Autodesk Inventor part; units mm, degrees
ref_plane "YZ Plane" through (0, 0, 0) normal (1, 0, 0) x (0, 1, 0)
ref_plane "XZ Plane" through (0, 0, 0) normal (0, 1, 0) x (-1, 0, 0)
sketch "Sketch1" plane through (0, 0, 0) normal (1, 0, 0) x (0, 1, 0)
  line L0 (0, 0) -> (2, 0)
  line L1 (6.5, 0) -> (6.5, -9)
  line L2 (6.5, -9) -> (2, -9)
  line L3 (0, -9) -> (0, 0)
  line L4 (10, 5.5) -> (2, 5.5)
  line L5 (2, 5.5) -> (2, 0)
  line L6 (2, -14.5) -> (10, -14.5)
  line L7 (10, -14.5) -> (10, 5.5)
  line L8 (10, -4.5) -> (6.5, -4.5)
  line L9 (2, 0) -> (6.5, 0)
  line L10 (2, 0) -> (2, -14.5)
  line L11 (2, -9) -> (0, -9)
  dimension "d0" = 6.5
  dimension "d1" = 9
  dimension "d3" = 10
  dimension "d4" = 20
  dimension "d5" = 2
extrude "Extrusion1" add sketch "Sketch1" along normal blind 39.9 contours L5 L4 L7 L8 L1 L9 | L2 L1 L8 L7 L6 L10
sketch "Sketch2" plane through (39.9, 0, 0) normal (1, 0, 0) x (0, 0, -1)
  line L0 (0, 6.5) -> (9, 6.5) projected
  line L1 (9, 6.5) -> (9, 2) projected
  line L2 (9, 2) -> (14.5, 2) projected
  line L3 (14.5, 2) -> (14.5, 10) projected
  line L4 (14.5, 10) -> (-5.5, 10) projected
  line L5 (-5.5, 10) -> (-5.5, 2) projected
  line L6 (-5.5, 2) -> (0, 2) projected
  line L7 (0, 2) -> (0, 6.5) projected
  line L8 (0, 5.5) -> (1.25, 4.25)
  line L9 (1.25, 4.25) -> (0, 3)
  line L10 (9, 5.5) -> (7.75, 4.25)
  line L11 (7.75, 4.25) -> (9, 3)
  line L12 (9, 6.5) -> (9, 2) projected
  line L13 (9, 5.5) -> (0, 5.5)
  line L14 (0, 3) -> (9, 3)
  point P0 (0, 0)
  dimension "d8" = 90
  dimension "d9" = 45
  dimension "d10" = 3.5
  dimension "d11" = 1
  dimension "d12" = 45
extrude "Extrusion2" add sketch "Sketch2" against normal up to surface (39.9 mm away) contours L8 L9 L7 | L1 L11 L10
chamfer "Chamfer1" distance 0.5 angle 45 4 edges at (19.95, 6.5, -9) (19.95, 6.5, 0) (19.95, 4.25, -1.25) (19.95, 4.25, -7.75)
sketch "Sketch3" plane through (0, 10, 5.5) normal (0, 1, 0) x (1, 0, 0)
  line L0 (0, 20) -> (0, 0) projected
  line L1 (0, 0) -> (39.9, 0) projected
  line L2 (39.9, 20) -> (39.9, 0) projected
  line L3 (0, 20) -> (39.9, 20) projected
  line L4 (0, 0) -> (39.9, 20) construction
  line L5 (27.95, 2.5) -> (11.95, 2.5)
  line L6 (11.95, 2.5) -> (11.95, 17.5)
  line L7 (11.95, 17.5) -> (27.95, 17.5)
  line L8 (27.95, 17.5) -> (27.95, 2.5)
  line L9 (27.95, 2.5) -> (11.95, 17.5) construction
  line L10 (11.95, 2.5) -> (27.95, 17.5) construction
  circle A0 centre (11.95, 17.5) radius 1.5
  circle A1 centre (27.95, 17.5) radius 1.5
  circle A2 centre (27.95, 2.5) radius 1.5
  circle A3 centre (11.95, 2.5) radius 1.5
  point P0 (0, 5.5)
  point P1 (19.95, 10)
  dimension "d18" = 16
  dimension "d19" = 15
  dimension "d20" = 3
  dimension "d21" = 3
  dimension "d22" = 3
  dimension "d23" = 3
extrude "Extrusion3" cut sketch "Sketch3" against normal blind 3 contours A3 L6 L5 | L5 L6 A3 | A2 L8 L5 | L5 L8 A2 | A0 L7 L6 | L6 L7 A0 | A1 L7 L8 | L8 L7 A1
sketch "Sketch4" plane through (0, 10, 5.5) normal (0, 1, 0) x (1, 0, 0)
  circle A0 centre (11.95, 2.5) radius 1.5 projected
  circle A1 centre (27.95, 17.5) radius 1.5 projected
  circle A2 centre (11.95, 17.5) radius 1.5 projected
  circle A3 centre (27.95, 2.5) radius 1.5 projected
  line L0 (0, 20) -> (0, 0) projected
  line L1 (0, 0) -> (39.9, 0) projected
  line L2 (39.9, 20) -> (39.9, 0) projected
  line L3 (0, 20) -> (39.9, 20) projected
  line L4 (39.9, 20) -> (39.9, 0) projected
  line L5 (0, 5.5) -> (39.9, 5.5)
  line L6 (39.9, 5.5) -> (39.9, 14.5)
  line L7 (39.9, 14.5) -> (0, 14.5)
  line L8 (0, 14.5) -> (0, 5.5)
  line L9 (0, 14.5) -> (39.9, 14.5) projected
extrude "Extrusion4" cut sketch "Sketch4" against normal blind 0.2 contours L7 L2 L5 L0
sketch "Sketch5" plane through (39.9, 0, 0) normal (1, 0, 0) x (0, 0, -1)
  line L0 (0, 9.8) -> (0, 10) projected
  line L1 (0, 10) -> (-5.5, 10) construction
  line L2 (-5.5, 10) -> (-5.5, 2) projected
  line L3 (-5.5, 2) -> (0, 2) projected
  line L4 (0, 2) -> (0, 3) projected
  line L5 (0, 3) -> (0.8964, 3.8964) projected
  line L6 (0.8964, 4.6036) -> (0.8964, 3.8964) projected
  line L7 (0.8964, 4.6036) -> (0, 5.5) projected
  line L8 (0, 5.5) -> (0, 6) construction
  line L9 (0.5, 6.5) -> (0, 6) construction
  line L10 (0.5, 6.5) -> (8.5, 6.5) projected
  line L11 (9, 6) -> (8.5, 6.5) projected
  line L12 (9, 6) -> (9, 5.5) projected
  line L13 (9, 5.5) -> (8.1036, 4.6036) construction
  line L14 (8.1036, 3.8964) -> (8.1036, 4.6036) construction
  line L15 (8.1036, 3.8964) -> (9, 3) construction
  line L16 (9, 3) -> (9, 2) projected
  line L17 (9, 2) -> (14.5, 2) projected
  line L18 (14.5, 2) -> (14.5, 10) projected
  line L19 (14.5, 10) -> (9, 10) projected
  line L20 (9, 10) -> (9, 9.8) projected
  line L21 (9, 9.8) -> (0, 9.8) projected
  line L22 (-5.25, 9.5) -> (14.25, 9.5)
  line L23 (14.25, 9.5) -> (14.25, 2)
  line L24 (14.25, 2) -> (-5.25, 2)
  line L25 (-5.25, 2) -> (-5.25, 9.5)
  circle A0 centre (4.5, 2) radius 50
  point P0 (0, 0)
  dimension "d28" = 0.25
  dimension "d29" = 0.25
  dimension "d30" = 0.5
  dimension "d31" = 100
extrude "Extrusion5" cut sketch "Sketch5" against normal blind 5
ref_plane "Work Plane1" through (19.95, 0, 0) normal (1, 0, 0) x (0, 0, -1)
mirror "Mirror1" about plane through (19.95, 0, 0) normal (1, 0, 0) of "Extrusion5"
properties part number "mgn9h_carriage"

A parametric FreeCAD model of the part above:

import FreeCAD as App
import Part
import Sketcher
from FreeCAD import Vector
Q = App.Units.Quantity


def edges_at(feature, points):
    """Names of the edges that pass closest to the given points."""
    edges = feature.Shape.Edges
    near = lambda p: min(range(len(edges)), key=lambda i: edges[i].distToShape(Part.Vertex(*p))[0])
    return sorted({f"Edge{near(p) + 1}" for p in points})


def add_polygon(sketch, points):
    """Adds a closed chain of lines whose ends are joined by coincident constraints."""
    first, n = sketch.GeometryCount, len(points)
    for a, b in zip(points, points[1:] + points[:1]):
        sketch.addGeometry(Part.LineSegment(App.Vector(*a, 0), App.Vector(*b, 0)), False)
    for i in range(n):
        sketch.addConstraint(Sketcher.Constraint("Coincident", first + i, 2, first + (i + 1) % n, 1))

doc = App.newDocument("Part")
params = doc.addObject("Spreadsheet::Sheet", "Params")
for row, (alias, value) in enumerate([
    ("sketch1_height", "9 mm"),
    ("sketch1_height2", "20 mm"),
    ("pad1_length", "39.9 mm"),
    ("sketch2_width", "2.5 mm"),
    ("pad2_length", "39.9 mm"),
    ("chamfer_size", "0.5 mm"),
    ("sketch3_diameter", "3 mm"),
    ("pocket1_length", "3 mm"),
    ("sketch4_height", "9 mm"),
    ("sketch4_width", "39.9 mm"),
    ("pocket2_length", "0.2 mm"),
    ("sketch5_diameter", "100 mm"),
    ("sketch5_width", "7.5 mm"),
    ("sketch5_height", "19.5 mm"),
    ("pocket3_length", "5 mm"),
], start=1):
    params.set(f"A{row}", alias)
    params.set(f"B{row}", "=" + value)
    params.setAlias(f"B{row}", alias)

body = doc.addObject("PartDesign::Body", "Body")

sketch1 = doc.addObject("Sketcher::SketchObject", "Sketch")
body.addObject(sketch1)
sketch1.AttachmentSupport = (doc.YZ_Plane, [""])
sketch1.MapMode = "FlatFace"
add_polygon(sketch1, [(2, 5.5), (2, 0), (6.5, 0), (6.5, -9), (2, -9), (2, -14.5), (10, -14.5), (10, 5.5)])
sketch1.addConstraint([
    Sketcher.Constraint("Vertical", 0),
    Sketcher.Constraint("Horizontal", 1),
    Sketcher.Constraint("Vertical", 2),
    Sketcher.Constraint("Horizontal", 3),
    Sketcher.Constraint("Vertical", 4),
    Sketcher.Constraint("Horizontal", 5),
    Sketcher.Constraint("Vertical", 6),
    Sketcher.Constraint("Horizontal", 7),
    Sketcher.Constraint("PointOnObject", 0, 2, -1),
    Sketcher.Constraint("Vertical", 0, 2, 3, 2),
    Sketcher.Constraint("Equal", 0, 4),
    Sketcher.Constraint("DistanceY", 2, 2, 2, 1, Q("9 mm")),
    Sketcher.Constraint("DistanceY", 6, 1, 6, 2, Q("20 mm")),
    Sketcher.Constraint("DistanceX", -1, 1, 0, 2, Q("2 mm")),
    Sketcher.Constraint("DistanceX", -1, 1, 5, 2, Q("10 mm")),
    Sketcher.Constraint("DistanceX", -1, 1, 1, 2, Q("6.5 mm")),
])
sketch1.setExpression("Constraints[19]", "Params.sketch1_height")
sketch1.setExpression("Constraints[20]", "Params.sketch1_height2")
pad1 = doc.addObject("PartDesign::Pad", "Pad")
body.addObject(pad1)
pad1.Profile = sketch1
pad1.setExpression("Length", "Params.pad1_length")

sketch2 = doc.addObject("Sketcher::SketchObject", "Sketch001")
body.addObject(sketch2)
sketch2.AttachmentSupport = (doc.YZ_Plane, [""])
sketch2.MapMode = "FlatFace"
sketch2.AttachmentOffset = App.Placement(Vector(0, 0, 39.9), App.Rotation())
add_polygon(sketch2, [(4.2, -1.2), (5.5, 0), (3, 0)])
add_polygon(sketch2, [(3, -9), (5.5, -9), (4.2, -7.8)])
sketch2.addConstraint([
    Sketcher.Constraint("Horizontal", 1),
    Sketcher.Constraint("Horizontal", 3),
    Sketcher.Constraint("PointOnObject", 0, 2, -1),
    Sketcher.Constraint("Perpendicular", 0, 2),
    Sketcher.Constraint("Parallel", 2, 4),
    Sketcher.Constraint("Perpendicular", 4, 5),
    Sketcher.Constraint("Vertical", 0, 2, 3, 2),
    Sketcher.Constraint("Vertical", 2, 2, 4, 2),
    Sketcher.Constraint("Vertical", 1, 2, 5, 2),
    Sketcher.Constraint("DistanceX", 1, 2, 1, 1, Q("2.5 mm")),
    Sketcher.Constraint("DistanceX", -1, 1, 1, 2, Q("3 mm")),
    Sketcher.Constraint("DistanceY", 3, 2, -1, 1, Q("9 mm")),
])
sketch2.setExpression("Constraints[15]", "Params.sketch2_width")
pad2 = doc.addObject("PartDesign::Pad", "Pad001")
body.addObject(pad2)
pad2.Profile = sketch2
pad2.setExpression("Length", "Params.pad2_length")
pad2.Reversed = True
doc.recompute()

chamfer = doc.addObject("PartDesign::Chamfer", "Chamfer")
body.addObject(chamfer)
chamfer.Base = (pad2, edges_at(pad2, [
    (19.95, 6.5, -9),
    (19.95, 6.5, 0),
    (19.95, 4.25, -1.25),
    (19.95, 4.25, -7.75),
]))
chamfer.setExpression("Size", "Params.chamfer_size")

sketch3 = doc.addObject("Sketcher::SketchObject", "Sketch002")
body.addObject(sketch3)
sketch3.AttachmentSupport = (doc.XZ_Plane, [""])
sketch3.MapMode = "FlatFace"
sketch3.AttachmentOffset = App.Placement(Vector(0, 0, -10), App.Rotation())
sketch3.addGeometry([
    Part.Circle(Vector(11.9, 3, 0), Vector(0, 0, 1), 1.5),
    Part.Circle(Vector(27.9, 3, 0), Vector(0, 0, 1), 1.5),
    Part.Circle(Vector(11.9, -12, 0), Vector(0, 0, 1), 1.5),
    Part.Circle(Vector(27.9, -12, 0), Vector(0, 0, 1), 1.5),
], False)
sketch3.addConstraint([
    Sketcher.Constraint("Equal", 0, 1),
    Sketcher.Constraint("Equal", 1, 2),
    Sketcher.Constraint("Equal", 2, 3),
    Sketcher.Constraint("Horizontal", 0, 3, 1, 3),
    Sketcher.Constraint("Horizontal", 2, 3, 3, 3),
    Sketcher.Constraint("Vertical", 0, 3, 2, 3),
    Sketcher.Constraint("Vertical", 1, 3, 3, 3),
    Sketcher.Constraint("Diameter", 0, Q("3 mm")),
    Sketcher.Constraint("DistanceY", -1, 1, 0, 3, Q("3 mm")),
    Sketcher.Constraint("DistanceX", 0, 3, 1, 3, Q("16 mm")),
    Sketcher.Constraint("DistanceY", 2, 3, 0, 3, Q("15 mm")),
    Sketcher.Constraint("DistanceX", -1, 1, 0, 3, Q("11.95 mm")),
])
sketch3.setExpression("Constraints[7]", "Params.sketch3_diameter")
pocket1 = doc.addObject("PartDesign::Pocket", "Pocket")
body.addObject(pocket1)
pocket1.Profile = sketch3
pocket1.setExpression("Length", "Params.pocket1_length")
pocket1.Reversed = True

sketch4 = doc.addObject("Sketcher::SketchObject", "Sketch003")
body.addObject(sketch4)
sketch4.AttachmentSupport = (doc.XZ_Plane, [""])
sketch4.MapMode = "FlatFace"
sketch4.AttachmentOffset = App.Placement(Vector(0, 0, -10), App.Rotation())
add_polygon(sketch4, [(40, -9), (0, -9), (0, 0), (40, 0)])
sketch4.addConstraint([
    Sketcher.Constraint("Horizontal", 0),
    Sketcher.Constraint("Vertical", 1),
    Sketcher.Constraint("Horizontal", 2),
    Sketcher.Constraint("Vertical", 3),
    Sketcher.Constraint("Coincident", 1, 2, -1, 1),
    Sketcher.Constraint("DistanceY", 1, 1, 1, 2, Q("9 mm")),
    Sketcher.Constraint("DistanceX", 0, 2, 0, 1, Q("39.9 mm")),
])
sketch4.setExpression("Constraints[9]", "Params.sketch4_height")
sketch4.setExpression("Constraints[10]", "Params.sketch4_width")
pocket2 = doc.addObject("PartDesign::Pocket", "Pocket001")
body.addObject(pocket2)
pocket2.Profile = sketch4
pocket2.setExpression("Length", "Params.pocket2_length")
pocket2.Reversed = True

sketch5 = doc.addObject("Sketcher::SketchObject", "Sketch004")
body.addObject(sketch5)
sketch5.AttachmentSupport = (doc.YZ_Plane, [""])
sketch5.MapMode = "FlatFace"
sketch5.AttachmentOffset = App.Placement(Vector(0, 0, 39.9), App.Rotation())
sketch5.addGeometry(Part.Circle(Vector(2, -4, 0), Vector(0, 0, 1), 50), False)
add_polygon(sketch5, [(2, -14), (2, 5), (10, 5), (10, -14)])
sketch5.addConstraint([
    Sketcher.Constraint("Vertical", 1),
    Sketcher.Constraint("Horizontal", 2),
    Sketcher.Constraint("Vertical", 3),
    Sketcher.Constraint("Horizontal", 4),
    Sketcher.Constraint("Vertical", 0, 3, 1, 2),
    Sketcher.Constraint("Diameter", 0, Q("100 mm")),
    Sketcher.Constraint("DistanceX", 2, 1, 2, 2, Q("7.5 mm")),
    Sketcher.Constraint("DistanceY", 1, 1, 1, 2, Q("19.5 mm")),
    Sketcher.Constraint("DistanceX", -1, 1, 0, 3, Q("2 mm")),
    Sketcher.Constraint("DistanceY", 0, 3, -1, 1, Q("4.5 mm")),
    Sketcher.Constraint("DistanceY", -1, 1, 1, 2, Q("5.25 mm")),
])
sketch5.setExpression("Constraints[9]", "Params.sketch5_diameter")
sketch5.setExpression("Constraints[10]", "Params.sketch5_width")
sketch5.setExpression("Constraints[11]", "Params.sketch5_height")
pocket3 = doc.addObject("PartDesign::Pocket", "Pocket002")
body.addObject(pocket3)
pocket3.Profile = sketch5
pocket3.setExpression("Length", "Params.pocket3_length")
doc.recompute()

datumplane = doc.addObject("PartDesign::Plane", "DatumPlane")
body.addObject(datumplane)
datumplane.AttachmentSupport = (doc.YZ_Plane, [""])
datumplane.MapMode = "FlatFace"
datumplane.AttachmentOffset = App.Placement(Vector(0, 0, 19.95), App.Rotation())
mirrored = doc.addObject("PartDesign::Mirrored", "Mirrored")
body.addObject(mirrored)
mirrored.Originals = [pocket3]
mirrored.MirrorPlane = (datumplane, [""])
body.Tip = mirrored

doc.recompute()
